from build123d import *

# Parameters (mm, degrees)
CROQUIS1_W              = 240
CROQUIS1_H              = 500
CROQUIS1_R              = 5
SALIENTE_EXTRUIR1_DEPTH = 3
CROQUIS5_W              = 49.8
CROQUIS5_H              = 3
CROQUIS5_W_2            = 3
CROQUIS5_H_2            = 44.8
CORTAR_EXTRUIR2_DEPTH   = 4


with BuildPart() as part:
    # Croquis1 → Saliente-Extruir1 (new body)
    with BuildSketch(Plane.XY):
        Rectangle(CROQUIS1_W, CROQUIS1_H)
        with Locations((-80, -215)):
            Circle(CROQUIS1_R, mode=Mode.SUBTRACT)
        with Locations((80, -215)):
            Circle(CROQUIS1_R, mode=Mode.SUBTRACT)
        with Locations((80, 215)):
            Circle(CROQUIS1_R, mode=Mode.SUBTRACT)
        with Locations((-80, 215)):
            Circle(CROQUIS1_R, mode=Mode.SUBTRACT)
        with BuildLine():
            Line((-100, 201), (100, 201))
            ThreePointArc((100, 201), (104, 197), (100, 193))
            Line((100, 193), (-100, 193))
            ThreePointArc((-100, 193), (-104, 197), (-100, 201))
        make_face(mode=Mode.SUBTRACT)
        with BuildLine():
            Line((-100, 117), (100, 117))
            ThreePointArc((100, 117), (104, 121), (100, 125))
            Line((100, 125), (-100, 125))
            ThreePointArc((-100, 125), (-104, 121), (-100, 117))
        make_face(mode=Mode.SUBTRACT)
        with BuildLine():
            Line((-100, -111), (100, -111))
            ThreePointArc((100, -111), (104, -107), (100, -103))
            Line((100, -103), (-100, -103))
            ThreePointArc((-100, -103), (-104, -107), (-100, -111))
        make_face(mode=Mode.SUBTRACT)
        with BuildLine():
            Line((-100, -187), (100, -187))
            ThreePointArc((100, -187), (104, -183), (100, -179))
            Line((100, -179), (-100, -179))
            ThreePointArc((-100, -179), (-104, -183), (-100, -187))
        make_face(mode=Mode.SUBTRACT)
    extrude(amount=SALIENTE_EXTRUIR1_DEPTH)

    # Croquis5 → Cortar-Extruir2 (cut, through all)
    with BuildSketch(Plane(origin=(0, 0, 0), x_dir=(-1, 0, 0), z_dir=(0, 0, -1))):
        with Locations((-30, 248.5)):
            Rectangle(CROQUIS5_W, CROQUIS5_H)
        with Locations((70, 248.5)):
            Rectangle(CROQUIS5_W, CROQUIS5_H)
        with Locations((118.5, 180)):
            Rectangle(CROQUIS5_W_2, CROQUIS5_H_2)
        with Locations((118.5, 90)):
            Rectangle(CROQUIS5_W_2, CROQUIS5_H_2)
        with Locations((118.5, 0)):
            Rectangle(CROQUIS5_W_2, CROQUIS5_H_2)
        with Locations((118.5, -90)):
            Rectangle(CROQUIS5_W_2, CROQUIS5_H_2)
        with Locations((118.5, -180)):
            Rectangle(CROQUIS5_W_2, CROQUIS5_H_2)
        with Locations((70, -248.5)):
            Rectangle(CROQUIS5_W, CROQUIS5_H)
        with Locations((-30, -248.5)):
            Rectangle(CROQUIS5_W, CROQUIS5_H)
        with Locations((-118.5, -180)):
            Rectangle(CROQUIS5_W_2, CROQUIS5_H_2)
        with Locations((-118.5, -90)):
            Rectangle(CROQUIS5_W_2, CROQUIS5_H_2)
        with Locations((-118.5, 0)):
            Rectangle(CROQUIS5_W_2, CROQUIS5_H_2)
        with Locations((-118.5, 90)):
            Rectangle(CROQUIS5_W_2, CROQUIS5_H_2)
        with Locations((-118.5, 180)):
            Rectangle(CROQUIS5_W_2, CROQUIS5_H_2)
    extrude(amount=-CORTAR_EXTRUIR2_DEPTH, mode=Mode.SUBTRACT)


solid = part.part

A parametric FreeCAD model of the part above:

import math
import FreeCAD as App
import Part
import Sketcher
from FreeCAD import Vector
Q = App.Units.Quantity


def add_polygon(sketch, points):
    """Adds a closed chain of lines whose ends are joined by coincident constraints."""
    first, n = sketch.GeometryCount, len(points)
    for a, b in zip(points, points[1:] + points[:1]):
        sketch.addGeometry(Part.LineSegment(App.Vector(*a, 0), App.Vector(*b, 0)), False)
    for i in range(n):
        sketch.addConstraint(Sketcher.Constraint("Coincident", first + i, 2, first + (i + 1) % n, 1))

doc = App.newDocument("Part")
body = doc.addObject("PartDesign::Body", "Body")

# Sketch on XY plane
sketch1 = doc.addObject("Sketcher::SketchObject", "Sketch")
body.addObject(sketch1)
sketch1.AttachmentSupport = (doc.XY_Plane, [""])
sketch1.MapMode = "FlatFace"
add_polygon(sketch1, [(-120, 250), (-120, -250), (120, -250), (120, 250)])  # lines 0-3
sketch1.addGeometry(Part.Circle(Vector(-80, -215, 0), Vector(0, 0, 1), 5), False)  # 4
sketch1.addGeometry(Part.LineSegment(Vector(100, -187, 0), Vector(-100, -187, 0)), False)  # 5
sketch1.addGeometry(Part.ArcOfCircle(Part.Circle(Vector(-100, -183, 0), Vector(0, 0, 1), 4), math.radians(90), math.radians(270)), False)  # 6
sketch1.addGeometry(Part.LineSegment(Vector(-100, -179, 0), Vector(100, -179, 0)), False)  # 7
sketch1.addGeometry(Part.ArcOfCircle(Part.Circle(Vector(100, -183, 0), Vector(0, 0, 1), 4), math.radians(-90), math.radians(90)), False)  # 8
sketch1.addGeometry(Part.Circle(Vector(80, -215, 0), Vector(0, 0, 1), 5), False)  # 9
sketch1.addGeometry(Part.LineSegment(Vector(100, -111, 0), Vector(-100, -111, 0)), False)  # 10
sketch1.addGeometry(Part.ArcOfCircle(Part.Circle(Vector(-100, -107, 0), Vector(0, 0, 1), 4), math.radians(90), math.radians(270)), False)  # 11
sketch1.addGeometry(Part.LineSegment(Vector(-100, -103, 0), Vector(100, -103, 0)), False)  # 12
sketch1.addGeometry(Part.ArcOfCircle(Part.Circle(Vector(100, -107, 0), Vector(0, 0, 1), 4), math.radians(-90), math.radians(90)), False)  # 13
sketch1.addGeometry(Part.Circle(Vector(-80, 215, 0), Vector(0, 0, 1), 5), False)  # 14
sketch1.addGeometry(Part.LineSegment(Vector(100, 117, 0), Vector(-100, 117, 0)), False)  # 15
sketch1.addGeometry(Part.ArcOfCircle(Part.Circle(Vector(-100, 121, 0), Vector(0, 0, 1), 4), math.radians(90), math.radians(270)), False)  # 16
sketch1.addGeometry(Part.LineSegment(Vector(-100, 125, 0), Vector(100, 125, 0)), False)  # 17
sketch1.addGeometry(Part.ArcOfCircle(Part.Circle(Vector(100, 121, 0), Vector(0, 0, 1), 4), math.radians(-90), math.radians(90)), False)  # 18
sketch1.addGeometry(Part.ArcOfCircle(Part.Circle(Vector(-100, 197, 0), Vector(0, 0, 1), 4), math.radians(90), math.radians(270)), False)  # 19
sketch1.addGeometry(Part.LineSegment(Vector(-100, 201, 0), Vector(100, 201, 0)), False)  # 20
sketch1.addGeometry(Part.ArcOfCircle(Part.Circle(Vector(100, 197, 0), Vector(0, 0, 1), 4), math.radians(-90), math.radians(90)), False)  # 21
sketch1.addGeometry(Part.LineSegment(Vector(100, 193, 0), Vector(-100, 193, 0)), False)  # 22
sketch1.addGeometry(Part.Circle(Vector(80, 215, 0), Vector(0, 0, 1), 5), False)  # 23
sketch1.addConstraint([
    Sketcher.Constraint("Tangent", 5, 2, 6, 2),
    Sketcher.Constraint("Tangent", 6, 1, 7, 1),
    Sketcher.Constraint("Tangent", 7, 2, 8, 2),
    Sketcher.Constraint("Tangent", 8, 1, 5, 1),
    Sketcher.Constraint("Tangent", 10, 2, 11, 2),
    Sketcher.Constraint("Tangent", 11, 1, 12, 1),
    Sketcher.Constraint("Tangent", 12, 2, 13, 2),
    Sketcher.Constraint("Tangent", 13, 1, 10, 1),
    Sketcher.Constraint("Tangent", 15, 2, 16, 2),
    Sketcher.Constraint("Tangent", 16, 1, 17, 1),
    Sketcher.Constraint("Tangent", 17, 2, 18, 2),
    Sketcher.Constraint("Tangent", 18, 1, 15, 1),
    Sketcher.Constraint("Tangent", 19, 1, 20, 1),
    Sketcher.Constraint("Tangent", 20, 2, 21, 2),
    Sketcher.Constraint("Tangent", 21, 1, 22, 1),
    Sketcher.Constraint("Tangent", 22, 2, 19, 2),
    Sketcher.Constraint("Vertical", 0),
    Sketcher.Constraint("Horizontal", 1),
    Sketcher.Constraint("Vertical", 2),
    Sketcher.Constraint("Horizontal", 3),
    Sketcher.Constraint("Horizontal", 5),
    Sketcher.Constraint("Horizontal", 7),
    Sketcher.Constraint("Horizontal", 10),
    Sketcher.Constraint("Horizontal", 12),
    Sketcher.Constraint("Horizontal", 15),
    Sketcher.Constraint("Horizontal", 17),
    Sketcher.Constraint("Horizontal", 20),
    Sketcher.Constraint("Horizontal", 22),
    Sketcher.Constraint("Equal", 4, 9),
    Sketcher.Constraint("Equal", 8, 11),
    Sketcher.Constraint("Equal", 9, 14),
    Sketcher.Constraint("Equal", 13, 16),
    Sketcher.Constraint("Equal", 18, 19),
    Sketcher.Constraint("Equal", 14, 23),
    Sketcher.Constraint("Symmetric", 9, 3, 14, 3, -1, 1),
    Sketcher.Constraint("Symmetric", 4, 3, 23, 3, -1, 1),
    Sketcher.Constraint("Symmetric", 0, 2, 2, 2, -1, 1),
    Sketcher.Constraint("Symmetric", 4, 3, 9, 3, -2),
    Sketcher.Constraint("Vertical", 6, 3, 11, 3),
    Sketcher.Constraint("Vertical", 8, 3, 13, 3),
    Sketcher.Constraint("Vertical", 11, 3, 16, 3),
    Sketcher.Constraint("Vertical", 13, 3, 18, 3),
    Sketcher.Constraint("Vertical", 16, 3, 19, 3),
    Sketcher.Constraint("Vertical", 18, 3, 21, 3),
    Sketcher.Constraint("Diameter", 4, Q("10 mm")),
    Sketcher.Constraint("Radius", 6, Q("4 mm")),
    Sketcher.Constraint("DistanceX", 1, 1, 1, 2, Q("240 mm")),
    Sketcher.Constraint("DistanceX", 5, 2, 5, 1, Q("200 mm")),
    Sketcher.Constraint("DistanceY", 0, 2, 0, 1, Q("500 mm")),
    Sketcher.Constraint("DistanceX", 4, 3, -1, 1, Q("80 mm")),
    Sketcher.Constraint("DistanceY", 4, 3, -1, 1, Q("215 mm")),
    Sketcher.Constraint("DistanceX", 6, 3, -1, 1, Q("100 mm")),
    Sketcher.Constraint("DistanceY", 6, 3, -1, 1, Q("183 mm")),
    Sketcher.Constraint("DistanceY", 11, 3, -1, 1, Q("107 mm")),
    Sketcher.Constraint("DistanceY", -1, 1, 16, 3, Q("121 mm")),
    Sketcher.Constraint("DistanceY", -1, 1, 19, 3, Q("197 mm")),
])
pad1 = doc.addObject("PartDesign::Pad", "Pad")
body.addObject(pad1)
pad1.Profile = sketch1
pad1.Length = 3

# Sketch on XY plane
sketch2 = doc.addObject("Sketcher::SketchObject", "Sketch001")
body.addObject(sketch2)
sketch2.AttachmentSupport = (doc.XY_Plane, [""])
sketch2.MapMode = "FlatFace"
add_polygon(sketch2, [(54.9, 250), (54.9, 247), (5.1, 247), (5.1, 250)])  # lines 0-3
add_polygon(sketch2, [(-45.1, 250), (-45.1, 247), (-94.9, 247), (-94.9, 250)])  # lines 4-7
add_polygon(sketch2, [(-117, 202.4), (-117, 157.6), (-120, 157.6), (-120, 202.4)])  # lines 8-11
add_polygon(sketch2, [(-117, 112.4), (-117, 67.6), (-120, 67.6), (-120, 112.4)])  # lines 12-15
add_polygon(sketch2, [(-117, 22.4), (-117, -22.4), (-120, -22.4), (-120, 22.4)])  # lines 16-19
add_polygon(sketch2, [(-117, -67.6), (-117, -112.4), (-120, -112.4), (-120, -67.6)])  # lines 20-23
add_polygon(sketch2, [(-117, -157.6), (-117, -202.4), (-120, -202.4), (-120, -157.6)])  # lines 24-27
add_polygon(sketch2, [(-45.1, -247), (-45.1, -250), (-94.9, -250), (-94.9, -247)])  # lines 28-31
add_polygon(sketch2, [(54.9, -247), (54.9, -250), (5.1, -250), (5.1, -247)])  # lines 32-35
add_polygon(sketch2, [(120, -157.6), (120, -202.4), (117, -202.4), (117, -157.6)])  # lines 36-39
add_polygon(sketch2, [(120, -67.6), (120, -112.4), (117, -112.4), (117, -67.6)])  # lines 40-43
add_polygon(sketch2, [(120, 22.4), (120, -22.4), (117, -22.4), (117, 22.4)])  # lines 44-47
add_polygon(sketch2, [(120, 112.4), (120, 67.6), (117, 67.6), (117, 112.4)])  # lines 48-51
add_polygon(sketch2, [(120, 202.4), (120, 157.6), (117, 157.6), (117, 202.4)])  # lines 52-55
sketch2.addConstraint([
    Sketcher.Constraint("Vertical", 0),
    Sketcher.Constraint("Horizontal", 1),
    Sketcher.Constraint("Vertical", 2),
    Sketcher.Constraint("Horizontal", 3),
    Sketcher.Constraint("Vertical", 4),
    Sketcher.Constraint("Horizontal", 5),
    Sketcher.Constraint("Vertical", 6),
    Sketcher.Constraint("Horizontal", 7),
    Sketcher.Constraint("Vertical", 8),
    Sketcher.Constraint("Horizontal", 9),
    Sketcher.Constraint("Vertical", 10),
    Sketcher.Constraint("Horizontal", 11),
    Sketcher.Constraint("Vertical", 12),
    Sketcher.Constraint("Horizontal", 13),
    Sketcher.Constraint("Vertical", 14),
    Sketcher.Constraint("Horizontal", 15),
    Sketcher.Constraint("Vertical", 16),
    Sketcher.Constraint("Horizontal", 17),
    Sketcher.Constraint("Vertical", 18),
    Sketcher.Constraint("Horizontal", 19),
    Sketcher.Constraint("Vertical", 20),
    Sketcher.Constraint("Horizontal", 21),
    Sketcher.Constraint("Vertical", 22),
    Sketcher.Constraint("Horizontal", 23),
    Sketcher.Constraint("Vertical", 24),
    Sketcher.Constraint("Horizontal", 25),
    Sketcher.Constraint("Vertical", 26),
    Sketcher.Constraint("Horizontal", 27),
    Sketcher.Constraint("Vertical", 28),
    Sketcher.Constraint("Horizontal", 29),
    Sketcher.Constraint("Vertical", 30),
    Sketcher.Constraint("Horizontal", 31),
    Sketcher.Constraint("Vertical", 32),
    Sketcher.Constraint("Horizontal", 33),
    Sketcher.Constraint("Vertical", 34),
    Sketcher.Constraint("Horizontal", 35),
    Sketcher.Constraint("Vertical", 36),
    Sketcher.Constraint("Horizontal", 37),
    Sketcher.Constraint("Vertical", 38),
    Sketcher.Constraint("Horizontal", 39),
    Sketcher.Constraint("Vertical", 40),
    Sketcher.Constraint("Horizontal", 41),
    Sketcher.Constraint("Vertical", 42),
    Sketcher.Constraint("Horizontal", 43),
    Sketcher.Constraint("Vertical", 44),
    Sketcher.Constraint("Horizontal", 45),
    Sketcher.Constraint("Vertical", 46),
    Sketcher.Constraint("Horizontal", 47),
    Sketcher.Constraint("Vertical", 48),
    Sketcher.Constraint("Horizontal", 49),
    Sketcher.Constraint("Vertical", 50),
    Sketcher.Constraint("Horizontal", 51),
    Sketcher.Constraint("Vertical", 52),
    Sketcher.Constraint("Horizontal", 53),
    Sketcher.Constraint("Vertical", 54),
    Sketcher.Constraint("Horizontal", 55),
    Sketcher.Constraint("Symmetric", 10, 2, 36, 2, -1, 1),
    Sketcher.Constraint("Symmetric", 8, 2, 38, 2, -1, 1),
    Sketcher.Constraint("Symmetric", 14, 2, 40, 2, -1, 1),
    Sketcher.Constraint("Symmetric", 12, 2, 42, 2, -1, 1),
    Sketcher.Constraint("Symmetric", 18, 2, 44, 2, -1, 1),
    Sketcher.Constraint("Symmetric", 16, 2, 46, 2, -1, 1),
    Sketcher.Constraint("Symmetric", 22, 2, 48, 2, -1, 1),
    Sketcher.Constraint("Symmetric", 20, 2, 50, 2, -1, 1),
    Sketcher.Constraint("Symmetric", 26, 2, 52, 2, -1, 1),
    Sketcher.Constraint("Symmetric", 24, 2, 54, 2, -1, 1),
    Sketcher.Constraint("Symmetric", 25, 2, 36, 2, -2),
    Sketcher.Constraint("Symmetric", 27, 2, 38, 2, -2),
    Sketcher.Constraint("Symmetric", 21, 2, 40, 2, -2),
    Sketcher.Constraint("Symmetric", 23, 2, 42, 2, -2),
    Sketcher.Constraint("Symmetric", 7, 2, 28, 2, -1),
    Sketcher.Constraint("Symmetric", 5, 2, 30, 2, -1),
    Sketcher.Constraint("Symmetric", 3, 2, 32, 2, -1),
    Sketcher.Constraint("Symmetric", 1, 2, 34, 2, -1),
    Sketcher.Constraint("Horizontal", 1, 2, 4, 2),
    Sketcher.Constraint("Horizontal", 3, 2, 6, 2),
    Sketcher.Constraint("Horizontal", 17, 2, 44, 2),
    Sketcher.Constraint("Vertical", 11, 2, 12, 2),
    Sketcher.Constraint("Vertical", 10, 2, 13, 2),
    Sketcher.Constraint("Vertical", 15, 2, 16, 2),
    Sketcher.Constraint("Vertical", 14, 2, 17, 2),
    Sketcher.Constraint("Equal", 3, 5),
    Sketcher.Constraint("Equal", 55, 0),
    Sketcher.Constraint("Equal", 10, 12),
    Sketcher.Constraint("Equal", 14, 16),
    Sketcher.Constraint("DistanceX", 9, 2, 9, 1, Q("3 mm")),
    Sketcher.Constraint("DistanceX", 1, 2, 1, 1, Q("49.8 mm")),
    Sketcher.Constraint("DistanceY", 8, 2, 8, 1, Q("44.8 mm")),
    Sketcher.Constraint("DistanceY", -1, 1, 0, 2, Q("247 mm")),
    Sketcher.Constraint("DistanceX", 8, 2, -1, 1, Q("117 mm")),
    Sketcher.Constraint("DistanceX", 4, 2, 0, 2, Q("100 mm")),
    Sketcher.Constraint("DistanceY", 12, 2, 8, 2, Q("90 mm")),
    Sketcher.Constraint("DistanceY", 16, 2, 12, 2, Q("90 mm")),
    Sketcher.Constraint("DistanceX", -1, 1, 0, 2, Q("54.9 mm")),
])
pocket1 = doc.addObject("PartDesign::Pocket", "Pocket")
body.addObject(pocket1)
pocket1.Profile = sketch2
pocket1.Type = "ThroughAll"
pocket1.Reversed = True

doc.recompute()
